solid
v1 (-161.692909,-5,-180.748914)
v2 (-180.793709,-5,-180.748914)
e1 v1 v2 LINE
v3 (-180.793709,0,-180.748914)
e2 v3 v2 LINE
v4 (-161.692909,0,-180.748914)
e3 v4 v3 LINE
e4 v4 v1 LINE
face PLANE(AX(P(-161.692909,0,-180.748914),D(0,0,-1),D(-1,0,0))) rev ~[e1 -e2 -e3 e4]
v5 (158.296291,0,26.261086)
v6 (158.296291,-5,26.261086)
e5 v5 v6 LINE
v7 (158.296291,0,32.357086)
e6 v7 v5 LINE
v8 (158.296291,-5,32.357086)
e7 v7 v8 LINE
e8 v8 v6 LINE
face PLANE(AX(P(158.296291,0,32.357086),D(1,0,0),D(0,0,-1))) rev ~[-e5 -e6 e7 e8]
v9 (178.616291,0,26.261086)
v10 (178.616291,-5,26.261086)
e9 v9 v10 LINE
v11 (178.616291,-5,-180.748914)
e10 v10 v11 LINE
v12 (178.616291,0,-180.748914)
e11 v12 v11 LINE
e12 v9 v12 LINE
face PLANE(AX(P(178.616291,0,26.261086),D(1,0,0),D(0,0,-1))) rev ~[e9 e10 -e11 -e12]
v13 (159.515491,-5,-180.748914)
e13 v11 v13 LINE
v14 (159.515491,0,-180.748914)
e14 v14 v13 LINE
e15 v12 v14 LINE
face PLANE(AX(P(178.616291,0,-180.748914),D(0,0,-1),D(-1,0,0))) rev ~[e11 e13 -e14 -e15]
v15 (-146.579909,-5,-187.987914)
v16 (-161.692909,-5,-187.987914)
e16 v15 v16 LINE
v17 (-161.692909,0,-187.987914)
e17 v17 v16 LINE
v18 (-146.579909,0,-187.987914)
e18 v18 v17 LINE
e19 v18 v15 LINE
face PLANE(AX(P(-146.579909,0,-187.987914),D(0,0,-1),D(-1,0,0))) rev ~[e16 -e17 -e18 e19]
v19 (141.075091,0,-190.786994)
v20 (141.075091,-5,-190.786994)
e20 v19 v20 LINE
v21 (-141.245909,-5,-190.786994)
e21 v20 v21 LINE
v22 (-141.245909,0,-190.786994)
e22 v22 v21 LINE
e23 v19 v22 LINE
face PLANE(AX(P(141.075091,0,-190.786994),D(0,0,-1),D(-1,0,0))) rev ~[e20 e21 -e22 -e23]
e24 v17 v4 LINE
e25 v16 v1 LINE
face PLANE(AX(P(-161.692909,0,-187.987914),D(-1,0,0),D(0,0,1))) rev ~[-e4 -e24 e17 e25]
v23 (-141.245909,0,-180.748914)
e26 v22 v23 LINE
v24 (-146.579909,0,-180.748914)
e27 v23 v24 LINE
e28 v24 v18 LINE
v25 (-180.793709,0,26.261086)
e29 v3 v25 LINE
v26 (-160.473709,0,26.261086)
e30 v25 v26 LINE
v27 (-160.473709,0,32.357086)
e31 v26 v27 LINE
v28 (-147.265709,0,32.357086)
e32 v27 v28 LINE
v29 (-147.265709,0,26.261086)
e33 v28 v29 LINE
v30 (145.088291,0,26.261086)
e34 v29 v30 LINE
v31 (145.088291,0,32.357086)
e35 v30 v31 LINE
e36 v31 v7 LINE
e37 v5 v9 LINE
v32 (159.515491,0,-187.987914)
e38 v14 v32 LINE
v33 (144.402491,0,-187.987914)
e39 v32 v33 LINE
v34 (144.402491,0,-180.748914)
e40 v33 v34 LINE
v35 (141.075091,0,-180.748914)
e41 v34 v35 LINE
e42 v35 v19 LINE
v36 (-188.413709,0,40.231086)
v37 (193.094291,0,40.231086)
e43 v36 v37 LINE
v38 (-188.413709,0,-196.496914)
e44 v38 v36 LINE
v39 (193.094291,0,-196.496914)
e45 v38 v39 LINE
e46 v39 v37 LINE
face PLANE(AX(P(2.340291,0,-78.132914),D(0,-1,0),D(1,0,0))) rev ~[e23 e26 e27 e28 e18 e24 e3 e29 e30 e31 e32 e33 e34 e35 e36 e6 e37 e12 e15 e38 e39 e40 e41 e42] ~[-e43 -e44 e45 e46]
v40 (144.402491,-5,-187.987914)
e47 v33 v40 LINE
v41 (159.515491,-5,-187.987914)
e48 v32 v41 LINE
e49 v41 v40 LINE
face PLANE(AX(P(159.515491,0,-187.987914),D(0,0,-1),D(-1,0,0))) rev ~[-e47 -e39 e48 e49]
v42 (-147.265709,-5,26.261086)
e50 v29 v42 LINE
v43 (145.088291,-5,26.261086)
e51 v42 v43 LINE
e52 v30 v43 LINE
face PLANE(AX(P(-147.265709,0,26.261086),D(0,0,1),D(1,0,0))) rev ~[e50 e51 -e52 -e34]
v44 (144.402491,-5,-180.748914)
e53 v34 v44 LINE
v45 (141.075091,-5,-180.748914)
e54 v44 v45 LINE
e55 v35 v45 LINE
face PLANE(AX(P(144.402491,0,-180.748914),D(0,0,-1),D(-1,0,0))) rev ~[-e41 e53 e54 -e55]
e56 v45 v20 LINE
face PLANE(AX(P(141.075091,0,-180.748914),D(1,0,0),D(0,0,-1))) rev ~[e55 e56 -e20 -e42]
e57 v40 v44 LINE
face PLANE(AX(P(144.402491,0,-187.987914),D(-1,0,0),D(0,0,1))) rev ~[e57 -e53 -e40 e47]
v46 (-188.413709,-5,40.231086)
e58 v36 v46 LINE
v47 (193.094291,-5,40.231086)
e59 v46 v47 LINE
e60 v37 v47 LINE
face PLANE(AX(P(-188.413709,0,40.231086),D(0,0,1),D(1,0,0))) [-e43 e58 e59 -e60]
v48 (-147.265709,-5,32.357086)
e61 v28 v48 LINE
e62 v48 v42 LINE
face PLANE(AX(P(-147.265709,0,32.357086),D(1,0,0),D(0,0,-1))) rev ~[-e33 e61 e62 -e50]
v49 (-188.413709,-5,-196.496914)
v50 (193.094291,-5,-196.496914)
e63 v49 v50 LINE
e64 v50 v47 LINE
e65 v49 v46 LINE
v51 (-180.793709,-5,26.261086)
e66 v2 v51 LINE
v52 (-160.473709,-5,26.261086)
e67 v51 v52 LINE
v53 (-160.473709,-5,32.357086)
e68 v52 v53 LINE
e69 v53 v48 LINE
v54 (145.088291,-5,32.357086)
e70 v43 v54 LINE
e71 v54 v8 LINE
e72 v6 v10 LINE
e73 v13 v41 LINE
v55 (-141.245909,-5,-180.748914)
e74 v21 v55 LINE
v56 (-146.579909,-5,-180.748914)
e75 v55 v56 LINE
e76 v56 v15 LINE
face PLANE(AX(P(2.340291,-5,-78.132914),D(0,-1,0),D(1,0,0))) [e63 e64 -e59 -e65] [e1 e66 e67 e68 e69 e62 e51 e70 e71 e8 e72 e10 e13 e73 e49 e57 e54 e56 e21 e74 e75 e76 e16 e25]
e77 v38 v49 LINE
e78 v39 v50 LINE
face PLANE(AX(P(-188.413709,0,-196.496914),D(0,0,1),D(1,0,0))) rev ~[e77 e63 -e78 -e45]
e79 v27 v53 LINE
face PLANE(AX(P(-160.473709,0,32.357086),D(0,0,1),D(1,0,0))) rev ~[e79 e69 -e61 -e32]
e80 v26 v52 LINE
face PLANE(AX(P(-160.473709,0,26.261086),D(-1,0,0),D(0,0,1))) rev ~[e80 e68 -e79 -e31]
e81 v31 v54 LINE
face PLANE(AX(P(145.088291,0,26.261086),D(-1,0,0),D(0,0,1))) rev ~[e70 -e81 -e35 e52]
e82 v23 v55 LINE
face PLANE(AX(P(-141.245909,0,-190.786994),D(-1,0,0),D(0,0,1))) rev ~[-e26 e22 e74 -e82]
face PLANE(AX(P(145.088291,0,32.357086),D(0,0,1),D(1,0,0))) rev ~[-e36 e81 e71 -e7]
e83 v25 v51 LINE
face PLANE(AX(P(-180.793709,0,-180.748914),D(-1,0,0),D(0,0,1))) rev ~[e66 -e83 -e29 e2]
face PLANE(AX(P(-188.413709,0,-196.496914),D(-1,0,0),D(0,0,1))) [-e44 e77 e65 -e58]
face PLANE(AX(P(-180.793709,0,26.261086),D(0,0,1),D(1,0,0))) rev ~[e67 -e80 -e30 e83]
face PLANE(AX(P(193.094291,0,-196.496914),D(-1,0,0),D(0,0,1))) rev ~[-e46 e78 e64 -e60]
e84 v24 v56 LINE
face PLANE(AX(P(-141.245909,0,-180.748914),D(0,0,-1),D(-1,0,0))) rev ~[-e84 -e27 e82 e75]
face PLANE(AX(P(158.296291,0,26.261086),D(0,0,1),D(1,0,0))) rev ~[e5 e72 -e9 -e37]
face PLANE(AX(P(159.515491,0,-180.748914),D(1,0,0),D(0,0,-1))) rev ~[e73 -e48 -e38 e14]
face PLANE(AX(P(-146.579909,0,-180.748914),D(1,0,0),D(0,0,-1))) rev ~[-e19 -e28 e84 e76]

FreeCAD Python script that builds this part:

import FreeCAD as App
import Part
import Sketcher
Q = App.Units.Quantity


def add_polygon(sketch, points):
    """Adds a closed chain of lines whose ends are joined by coincident constraints."""
    first, n = sketch.GeometryCount, len(points)
    for a, b in zip(points, points[1:] + points[:1]):
        sketch.addGeometry(Part.LineSegment(App.Vector(*a, 0), App.Vector(*b, 0)), False)
    for i in range(n):
        sketch.addConstraint(Sketcher.Constraint("Coincident", first + i, 2, first + (i + 1) % n, 1))

doc = App.newDocument("Part")
body = doc.addObject("PartDesign::Body", "Body")

sketch1 = doc.addObject("Sketcher::SketchObject", "Sketch")
body.addObject(sketch1)
sketch1.AttachmentSupport = (doc.XZ_Plane, [""])
sketch1.MapMode = "FlatFace"
add_polygon(sketch1, [(-188.4, 40.2), (-188.4, -196.5), (193.1, -196.5), (193.1, 40.2)])
add_polygon(sketch1, [(-161.7, -180.7), (-180.8, -180.7), (-180.8, 26.3), (-160.5, 26.3), (-160.5, 32.4), (-147.3, 32.4), (-147.3, 26.3), (145.1, 26.3), (145.1, 32.4), (158.3, 32.4), (158.3, 26.3), (178.6, 26.3), (178.6, -180.7), (159.5, -180.7), (159.5, -188), (144.4, -188), (144.4, -180.7), (141.1, -180.7), (141.1, -190.8), (-141.2, -190.8), (-141.2, -180.7), (-146.6, -180.7), (-146.6, -188), (-161.7, -188)])
sketch1.addConstraint(Sketcher.Constraint("Vertical", 0))
sketch1.addConstraint(Sketcher.Constraint("Horizontal", 1))
sketch1.addConstraint(Sketcher.Constraint("Vertical", 2))
sketch1.addConstraint(Sketcher.Constraint("Horizontal", 3))
sketch1.addConstraint(Sketcher.Constraint("Horizontal", 4))
sketch1.addConstraint(Sketcher.Constraint("Vertical", 5))
sketch1.addConstraint(Sketcher.Constraint("Horizontal", 6))
sketch1.addConstraint(Sketcher.Constraint("Vertical", 7))
sketch1.addConstraint(Sketcher.Constraint("Horizontal", 8))
sketch1.addConstraint(Sketcher.Constraint("Vertical", 9))
sketch1.addConstraint(Sketcher.Constraint("Horizontal", 10))
sketch1.addConstraint(Sketcher.Constraint("Vertical", 11))
sketch1.addConstraint(Sketcher.Constraint("Horizontal", 12))
sketch1.addConstraint(Sketcher.Constraint("Vertical", 13))
sketch1.addConstraint(Sketcher.Constraint("Horizontal", 14))
sketch1.addConstraint(Sketcher.Constraint("Vertical", 15))
sketch1.addConstraint(Sketcher.Constraint("Horizontal", 16))
sketch1.addConstraint(Sketcher.Constraint("Vertical", 17))
sketch1.addConstraint(Sketcher.Constraint("Horizontal", 18))
sketch1.addConstraint(Sketcher.Constraint("Vertical", 19))
sketch1.addConstraint(Sketcher.Constraint("Horizontal", 20))
sketch1.addConstraint(Sketcher.Constraint("Vertical", 21))
sketch1.addConstraint(Sketcher.Constraint("Horizontal", 22))
sketch1.addConstraint(Sketcher.Constraint("Vertical", 23))
sketch1.addConstraint(Sketcher.Constraint("Horizontal", 24))
sketch1.addConstraint(Sketcher.Constraint("Vertical", 25))
sketch1.addConstraint(Sketcher.Constraint("Horizontal", 26))
sketch1.addConstraint(Sketcher.Constraint("Vertical", 27))
sketch1.addConstraint(Sketcher.Constraint("Horizontal", 6, 2, 9, 2))
sketch1.addConstraint(Sketcher.Constraint("Horizontal", 8, 2, 11, 2))
sketch1.addConstraint(Sketcher.Constraint("Horizontal", 10, 2, 13, 2))
sketch1.addConstraint(Sketcher.Constraint("Horizontal", 4, 2, 15, 2))
sketch1.addConstraint(Sketcher.Constraint("Horizontal", 16, 2, 19, 2))
sketch1.addConstraint(Sketcher.Constraint("Horizontal", 20, 2, 23, 2))
sketch1.addConstraint(Sketcher.Constraint("Horizontal", 18, 2, 25, 2))
sketch1.addConstraint(Sketcher.Constraint("Equal", 8, 12))
sketch1.addConstraint(Sketcher.Constraint("Equal", 6, 14))
sketch1.addConstraint(Sketcher.Constraint("Equal", 4, 16))
sketch1.addConstraint(Sketcher.Constraint("Equal", 18, 26))
sketch1.addConstraint(Sketcher.Constraint("DistanceX", 6, 1, 6, 2, Q("0.8 in")))
sketch1.addConstraint(Sketcher.Constraint("DistanceX", 1, 1, 1, 2, Q("15.02 in")))
sketch1.addConstraint(Sketcher.Constraint("DistanceX", 8, 1, 8, 2, Q("0.52 in")))
sketch1.addConstraint(Sketcher.Constraint("DistanceX", 10, 1, 10, 2, Q("11.51 in")))
sketch1.addConstraint(Sketcher.Constraint("DistanceX", 24, 2, 24, 1, Q("0.21 in")))
sketch1.addConstraint(Sketcher.Constraint("DistanceY", 0, 2, 0, 1, Q("9.32 in")))
sketch1.addConstraint(Sketcher.Constraint("DistanceY", 5, 1, 5, 2, Q("8.15 in")))
sketch1.addConstraint(Sketcher.Constraint("DistanceY", 7, 1, 7, 2, Q("0.24 in")))
sketch1.addConstraint(Sketcher.Constraint("DistanceX", 0, 2, 4, 2, Q("0.3 in")))
sketch1.addConstraint(Sketcher.Constraint("DistanceY", 4, 2, 3, 2, Q("8.7 in")))
sketch1.addConstraint(Sketcher.Constraint("DistanceX", 4, 2, 4, 1, Q("0.752 in")))
sketch1.addConstraint(Sketcher.Constraint("DistanceX", 18, 2, 18, 1, Q("0.595 in")))
sketch1.addConstraint(Sketcher.Constraint("DistanceX", 20, 2, 20, 1, Q("0.131 in")))
sketch1.addConstraint(Sketcher.Constraint("DistanceY", 17, 2, 17, 1, Q("0.285 in")))
sketch1.addConstraint(Sketcher.Constraint("DistanceY", 21, 2, 21, 1, Q("0.3952 in")))
sketch1.addConstraint(Sketcher.Constraint("DistanceX", 0, 2, -1, 1, 188.413709))
sketch1.addConstraint(Sketcher.Constraint("DistanceY", 0, 2, -1, 1, 196.496914))
pad1 = doc.addObject("PartDesign::Pad", "Pad")
body.addObject(pad1)
pad1.Profile = sketch1
pad1.Length = 5

doc.recompute()
